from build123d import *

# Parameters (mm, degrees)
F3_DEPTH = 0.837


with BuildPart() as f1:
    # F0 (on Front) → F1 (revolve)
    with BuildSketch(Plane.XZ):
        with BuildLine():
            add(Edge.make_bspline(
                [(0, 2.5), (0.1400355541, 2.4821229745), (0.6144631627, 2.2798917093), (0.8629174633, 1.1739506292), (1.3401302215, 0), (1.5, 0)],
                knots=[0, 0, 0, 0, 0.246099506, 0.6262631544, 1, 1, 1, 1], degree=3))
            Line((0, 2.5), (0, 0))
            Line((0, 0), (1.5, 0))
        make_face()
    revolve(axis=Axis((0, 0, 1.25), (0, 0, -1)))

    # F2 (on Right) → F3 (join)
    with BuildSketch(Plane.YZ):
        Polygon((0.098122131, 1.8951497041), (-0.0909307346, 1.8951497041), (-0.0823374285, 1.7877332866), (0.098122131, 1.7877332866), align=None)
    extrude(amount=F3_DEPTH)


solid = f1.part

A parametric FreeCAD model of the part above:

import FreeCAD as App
import Part
import Sketcher

doc = App.newDocument("Part")
body = doc.addObject("PartDesign::Body", "Body")

# Sketch on XZ plane
sketch1 = body.newObject("Sketcher::SketchObject", "Sketch")
sketch1.AttachmentSupport = (doc.getObject("XZ_Plane"), [""])
sketch1.MapMode = "FlatFace"
sketch1.addGeometry([
    Part.BSplineCurve([App.Vector(0, 2.5, 0), App.Vector(0.140036, 2.482123, 0), App.Vector(0.614463, 2.279892, 0), App.Vector(0.862917, 1.173951, 0), App.Vector(1.34013, 0, 0), App.Vector(1.5, 0, 0)], [4, 1, 1, 4], [0, 0.246099506, 0.626263154, 1], False, 3, [1, 1, 1, 1, 1, 1], False),
    Part.LineSegment(App.Vector(0, 2.5, 0), App.Vector(0, 0, 0)),
    Part.LineSegment(App.Vector(0, 0, 0), App.Vector(1.5, 0, 0)),
], False)
sketch1.addConstraint([
    Sketcher.Constraint("Block", 0),
    Sketcher.Constraint("Coincident", 0, 1, 1, 1),
    Sketcher.Constraint("Coincident", 1, 2, 2, 1),
    Sketcher.Constraint("Coincident", 2, 2, 0, 2),
    Sketcher.Constraint("Vertical", 1),
    Sketcher.Constraint("Horizontal", 2),
])
revolution = body.newObject("PartDesign::Revolution", "Revolution")
revolution.Profile = sketch1
revolution.ReferenceAxis = (sketch1, ["V_Axis"])
revolution.Angle = 360

# Sketch on YZ plane
sketch2 = body.newObject("Sketcher::SketchObject", "Sketch001")
sketch2.AttachmentSupport = (doc.getObject("YZ_Plane"), [""])
sketch2.MapMode = "FlatFace"
sketch2.addGeometry([
    Part.LineSegment(App.Vector(0.1, 1.9, 0), App.Vector(-0.09, 1.9, 0)),
    Part.LineSegment(App.Vector(-0.09, 1.9, 0), App.Vector(-0.08, 1.79, 0)),
    Part.LineSegment(App.Vector(-0.08, 1.79, 0), App.Vector(0.1, 1.79, 0)),
    Part.LineSegment(App.Vector(0.1, 1.79, 0), App.Vector(0.1, 1.9, 0)),
], False)
sketch2.addConstraint([
    Sketcher.Constraint("Coincident", 0, 2, 1, 1),
    Sketcher.Constraint("Coincident", 1, 2, 2, 1),
    Sketcher.Constraint("Coincident", 2, 2, 3, 1),
    Sketcher.Constraint("Coincident", 3, 2, 0, 1),
    Sketcher.Constraint("Horizontal", 0),
    Sketcher.Constraint("Horizontal", 2),
    Sketcher.Constraint("Vertical", 3),
    Sketcher.Constraint("DistanceX", 2, 1, 2, 2, 0.18046),
    Sketcher.Constraint("Distance", 1, 0.10776),
    Sketcher.Constraint("DistanceX", 0, 2, 0, 1, 0.189053),
    Sketcher.Constraint("DistanceX", 0, 2, -1, 1, 0.090931),
    Sketcher.Constraint("DistanceY", -1, 1, 0, 2, 1.89515),
])
pad1 = body.newObject("PartDesign::Pad", "Pad")
pad1.Profile = sketch2
pad1.Length = 0.837

doc.recompute()
